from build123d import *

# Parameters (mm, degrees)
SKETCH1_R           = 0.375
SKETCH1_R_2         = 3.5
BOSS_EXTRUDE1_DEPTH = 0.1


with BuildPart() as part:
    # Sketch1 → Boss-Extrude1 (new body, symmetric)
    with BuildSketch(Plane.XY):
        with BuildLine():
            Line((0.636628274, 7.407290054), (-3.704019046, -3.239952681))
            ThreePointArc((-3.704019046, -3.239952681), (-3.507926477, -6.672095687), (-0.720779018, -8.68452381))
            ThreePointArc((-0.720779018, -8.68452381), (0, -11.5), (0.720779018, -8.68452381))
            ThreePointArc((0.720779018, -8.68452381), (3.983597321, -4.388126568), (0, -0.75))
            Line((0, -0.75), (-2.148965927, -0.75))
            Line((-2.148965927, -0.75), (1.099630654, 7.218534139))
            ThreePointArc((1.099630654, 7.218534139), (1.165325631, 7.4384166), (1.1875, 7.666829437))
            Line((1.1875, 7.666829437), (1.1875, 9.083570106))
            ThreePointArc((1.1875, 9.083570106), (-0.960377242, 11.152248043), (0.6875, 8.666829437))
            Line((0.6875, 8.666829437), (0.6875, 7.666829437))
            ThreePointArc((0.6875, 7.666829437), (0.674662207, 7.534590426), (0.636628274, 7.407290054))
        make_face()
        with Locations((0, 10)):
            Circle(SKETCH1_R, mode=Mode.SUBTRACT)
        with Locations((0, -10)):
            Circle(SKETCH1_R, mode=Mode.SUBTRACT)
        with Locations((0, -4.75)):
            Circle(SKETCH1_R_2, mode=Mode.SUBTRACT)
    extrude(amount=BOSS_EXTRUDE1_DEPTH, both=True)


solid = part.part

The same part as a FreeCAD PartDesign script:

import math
import FreeCAD as App
import Part
import Sketcher

V = App.Vector
Q = App.Units.Quantity

doc = App.newDocument("Part")
params = doc.addObject("Spreadsheet::Sheet", "Params")
for row, (alias, value) in enumerate([
    ("sketch1_diameter", "7 mm"),
    ("sketch1_radius", "4 mm"),
    ("sketch1_radius2", "1.5 mm"),
    ("sketch1_diameter2", "0.75 mm"),
    ("sketch1_height", "1 mm"),
    ("pad1_length", "0.2 mm"),
], start=1):
    params.set(f"A{row}", alias)
    params.set(f"B{row}", "=" + value)
    params.setAlias(f"B{row}", alias)

body = doc.addObject("PartDesign::Body", "Body")

sketch1 = doc.addObject("Sketcher::SketchObject", "Sketch")
body.addObject(sketch1)
sketch1.AttachmentSupport = (doc.XY_Plane, [""])
sketch1.MapMode = "FlatFace"
sketch1.addGeometry([
    Part.LineSegment(V(0.64, 7.41, 0), V(-3.7, -3.24, 0)),
    Part.ArcOfCircle(Part.Circle(V(0, -4.75, 0), V(0, 0, 1), 4), math.radians(158), math.radians(260)),
    Part.ArcOfCircle(Part.Circle(V(0, -10, 0), V(0, 0, 1), 1.5), math.radians(119), math.radians(421)),
    Part.ArcOfCircle(Part.Circle(V(0, -4.75, 0), V(0, 0, 1), 4), math.radians(-80), math.radians(90)),
    Part.LineSegment(V(0, -0.75, 0), V(-2.15, -0.75, 0)),
    Part.LineSegment(V(-2.15, -0.75, 0), V(1.1, 7.22, 0)),
    Part.ArcOfCircle(Part.Circle(V(0, 7.67, 0), V(0, 0, 1), 1.19), math.radians(-22), math.radians(0)),
    Part.LineSegment(V(1.19, 7.67, 0), V(1.19, 9.08, 0)),
    Part.ArcOfCircle(Part.Circle(V(0, 10, 0), V(0, 0, 1), 1.5), math.radians(-38), math.radians(297)),
    Part.LineSegment(V(0.69, 8.67, 0), V(0.69, 7.67, 0)),
    Part.ArcOfCircle(Part.Circle(V(0, 7.67, 0), V(0, 0, 1), 0.69), math.radians(-22), math.radians(0)),
    Part.Circle(V(0, -10, 0), V(0, 0, 1), 0.38),
    Part.Circle(V(0, -4.75, 0), V(0, 0, 1), 3.5),
    Part.Circle(V(0, 10, 0), V(0, 0, 1), 0.38),
], False)
sketch1.addConstraint([
    Sketcher.Constraint("Tangent", 0, 2, 1, 1),
    Sketcher.Constraint("Coincident", 1, 2, 2, 1),
    Sketcher.Constraint("Coincident", 2, 2, 3, 1),
    Sketcher.Constraint("Tangent", 3, 2, 4, 1),
    Sketcher.Constraint("Coincident", 4, 2, 5, 1),
    Sketcher.Constraint("Tangent", 5, 2, 6, 1),
    Sketcher.Constraint("Tangent", 6, 2, 7, 1),
    Sketcher.Constraint("Coincident", 7, 2, 8, 1),
    Sketcher.Constraint("Coincident", 8, 2, 9, 1),
    Sketcher.Constraint("Tangent", 9, 2, 10, 2),
    Sketcher.Constraint("Tangent", 10, 1, 0, 1),
    Sketcher.Constraint("Horizontal", 4),
    Sketcher.Constraint("Vertical", 7),
    Sketcher.Constraint("Vertical", 9),
    Sketcher.Constraint("Coincident", 3, 3, 1, 3),
    Sketcher.Constraint("Coincident", 10, 3, 6, 3),
    Sketcher.Constraint("Coincident", 11, 3, 2, 3),
    Sketcher.Constraint("Coincident", 12, 3, 1, 3),
    Sketcher.Constraint("Coincident", 13, 3, 8, 3),
    Sketcher.Constraint("Equal", 1, 3),
    Sketcher.Constraint("Equal", 2, 8),
    Sketcher.Constraint("Equal", 11, 13),
    Sketcher.Constraint("Symmetric", 2, 3, 8, 3, -1, 1),
    Sketcher.Constraint("Symmetric", 1, 2, 2, 2, -2),
    Sketcher.Constraint("PointOnObject", 6, 3, -2),
    Sketcher.Constraint("Parallel", 0, 5),
    Sketcher.Constraint("Diameter", 12, Q("7 mm")),
    Sketcher.Constraint("Radius", 1, Q("4 mm")),
    Sketcher.Constraint("Radius", 2, Q("1.5 mm")),
    Sketcher.Constraint("Diameter", 11, Q("0.75 mm")),
    Sketcher.Constraint("DistanceY", 9, 2, 9, 1, Q("1 mm")),
    Sketcher.Constraint("DistanceY", 2, 3, -1, 1, Q("10 mm")),
    Sketcher.Constraint("Radius", 6, Q("1.1875 mm")),
    Sketcher.Constraint("Radius", 10, Q("0.6875 mm")),
    Sketcher.Constraint("DistanceY", 1, 3, -1, 1, Q("4.75 mm")),
])
sketch1.setExpression("Constraints[26]", "Params.sketch1_diameter")
sketch1.setExpression("Constraints[27]", "Params.sketch1_radius")
sketch1.setExpression("Constraints[28]", "Params.sketch1_radius2")
sketch1.setExpression("Constraints[29]", "Params.sketch1_diameter2")
sketch1.setExpression("Constraints[30]", "Params.sketch1_height")
pad1 = doc.addObject("PartDesign::Pad", "Pad")
body.addObject(pad1)
pad1.Profile = sketch1
pad1.setExpression("Length", "Params.pad1_length")
pad1.Midplane = True

doc.recompute()
